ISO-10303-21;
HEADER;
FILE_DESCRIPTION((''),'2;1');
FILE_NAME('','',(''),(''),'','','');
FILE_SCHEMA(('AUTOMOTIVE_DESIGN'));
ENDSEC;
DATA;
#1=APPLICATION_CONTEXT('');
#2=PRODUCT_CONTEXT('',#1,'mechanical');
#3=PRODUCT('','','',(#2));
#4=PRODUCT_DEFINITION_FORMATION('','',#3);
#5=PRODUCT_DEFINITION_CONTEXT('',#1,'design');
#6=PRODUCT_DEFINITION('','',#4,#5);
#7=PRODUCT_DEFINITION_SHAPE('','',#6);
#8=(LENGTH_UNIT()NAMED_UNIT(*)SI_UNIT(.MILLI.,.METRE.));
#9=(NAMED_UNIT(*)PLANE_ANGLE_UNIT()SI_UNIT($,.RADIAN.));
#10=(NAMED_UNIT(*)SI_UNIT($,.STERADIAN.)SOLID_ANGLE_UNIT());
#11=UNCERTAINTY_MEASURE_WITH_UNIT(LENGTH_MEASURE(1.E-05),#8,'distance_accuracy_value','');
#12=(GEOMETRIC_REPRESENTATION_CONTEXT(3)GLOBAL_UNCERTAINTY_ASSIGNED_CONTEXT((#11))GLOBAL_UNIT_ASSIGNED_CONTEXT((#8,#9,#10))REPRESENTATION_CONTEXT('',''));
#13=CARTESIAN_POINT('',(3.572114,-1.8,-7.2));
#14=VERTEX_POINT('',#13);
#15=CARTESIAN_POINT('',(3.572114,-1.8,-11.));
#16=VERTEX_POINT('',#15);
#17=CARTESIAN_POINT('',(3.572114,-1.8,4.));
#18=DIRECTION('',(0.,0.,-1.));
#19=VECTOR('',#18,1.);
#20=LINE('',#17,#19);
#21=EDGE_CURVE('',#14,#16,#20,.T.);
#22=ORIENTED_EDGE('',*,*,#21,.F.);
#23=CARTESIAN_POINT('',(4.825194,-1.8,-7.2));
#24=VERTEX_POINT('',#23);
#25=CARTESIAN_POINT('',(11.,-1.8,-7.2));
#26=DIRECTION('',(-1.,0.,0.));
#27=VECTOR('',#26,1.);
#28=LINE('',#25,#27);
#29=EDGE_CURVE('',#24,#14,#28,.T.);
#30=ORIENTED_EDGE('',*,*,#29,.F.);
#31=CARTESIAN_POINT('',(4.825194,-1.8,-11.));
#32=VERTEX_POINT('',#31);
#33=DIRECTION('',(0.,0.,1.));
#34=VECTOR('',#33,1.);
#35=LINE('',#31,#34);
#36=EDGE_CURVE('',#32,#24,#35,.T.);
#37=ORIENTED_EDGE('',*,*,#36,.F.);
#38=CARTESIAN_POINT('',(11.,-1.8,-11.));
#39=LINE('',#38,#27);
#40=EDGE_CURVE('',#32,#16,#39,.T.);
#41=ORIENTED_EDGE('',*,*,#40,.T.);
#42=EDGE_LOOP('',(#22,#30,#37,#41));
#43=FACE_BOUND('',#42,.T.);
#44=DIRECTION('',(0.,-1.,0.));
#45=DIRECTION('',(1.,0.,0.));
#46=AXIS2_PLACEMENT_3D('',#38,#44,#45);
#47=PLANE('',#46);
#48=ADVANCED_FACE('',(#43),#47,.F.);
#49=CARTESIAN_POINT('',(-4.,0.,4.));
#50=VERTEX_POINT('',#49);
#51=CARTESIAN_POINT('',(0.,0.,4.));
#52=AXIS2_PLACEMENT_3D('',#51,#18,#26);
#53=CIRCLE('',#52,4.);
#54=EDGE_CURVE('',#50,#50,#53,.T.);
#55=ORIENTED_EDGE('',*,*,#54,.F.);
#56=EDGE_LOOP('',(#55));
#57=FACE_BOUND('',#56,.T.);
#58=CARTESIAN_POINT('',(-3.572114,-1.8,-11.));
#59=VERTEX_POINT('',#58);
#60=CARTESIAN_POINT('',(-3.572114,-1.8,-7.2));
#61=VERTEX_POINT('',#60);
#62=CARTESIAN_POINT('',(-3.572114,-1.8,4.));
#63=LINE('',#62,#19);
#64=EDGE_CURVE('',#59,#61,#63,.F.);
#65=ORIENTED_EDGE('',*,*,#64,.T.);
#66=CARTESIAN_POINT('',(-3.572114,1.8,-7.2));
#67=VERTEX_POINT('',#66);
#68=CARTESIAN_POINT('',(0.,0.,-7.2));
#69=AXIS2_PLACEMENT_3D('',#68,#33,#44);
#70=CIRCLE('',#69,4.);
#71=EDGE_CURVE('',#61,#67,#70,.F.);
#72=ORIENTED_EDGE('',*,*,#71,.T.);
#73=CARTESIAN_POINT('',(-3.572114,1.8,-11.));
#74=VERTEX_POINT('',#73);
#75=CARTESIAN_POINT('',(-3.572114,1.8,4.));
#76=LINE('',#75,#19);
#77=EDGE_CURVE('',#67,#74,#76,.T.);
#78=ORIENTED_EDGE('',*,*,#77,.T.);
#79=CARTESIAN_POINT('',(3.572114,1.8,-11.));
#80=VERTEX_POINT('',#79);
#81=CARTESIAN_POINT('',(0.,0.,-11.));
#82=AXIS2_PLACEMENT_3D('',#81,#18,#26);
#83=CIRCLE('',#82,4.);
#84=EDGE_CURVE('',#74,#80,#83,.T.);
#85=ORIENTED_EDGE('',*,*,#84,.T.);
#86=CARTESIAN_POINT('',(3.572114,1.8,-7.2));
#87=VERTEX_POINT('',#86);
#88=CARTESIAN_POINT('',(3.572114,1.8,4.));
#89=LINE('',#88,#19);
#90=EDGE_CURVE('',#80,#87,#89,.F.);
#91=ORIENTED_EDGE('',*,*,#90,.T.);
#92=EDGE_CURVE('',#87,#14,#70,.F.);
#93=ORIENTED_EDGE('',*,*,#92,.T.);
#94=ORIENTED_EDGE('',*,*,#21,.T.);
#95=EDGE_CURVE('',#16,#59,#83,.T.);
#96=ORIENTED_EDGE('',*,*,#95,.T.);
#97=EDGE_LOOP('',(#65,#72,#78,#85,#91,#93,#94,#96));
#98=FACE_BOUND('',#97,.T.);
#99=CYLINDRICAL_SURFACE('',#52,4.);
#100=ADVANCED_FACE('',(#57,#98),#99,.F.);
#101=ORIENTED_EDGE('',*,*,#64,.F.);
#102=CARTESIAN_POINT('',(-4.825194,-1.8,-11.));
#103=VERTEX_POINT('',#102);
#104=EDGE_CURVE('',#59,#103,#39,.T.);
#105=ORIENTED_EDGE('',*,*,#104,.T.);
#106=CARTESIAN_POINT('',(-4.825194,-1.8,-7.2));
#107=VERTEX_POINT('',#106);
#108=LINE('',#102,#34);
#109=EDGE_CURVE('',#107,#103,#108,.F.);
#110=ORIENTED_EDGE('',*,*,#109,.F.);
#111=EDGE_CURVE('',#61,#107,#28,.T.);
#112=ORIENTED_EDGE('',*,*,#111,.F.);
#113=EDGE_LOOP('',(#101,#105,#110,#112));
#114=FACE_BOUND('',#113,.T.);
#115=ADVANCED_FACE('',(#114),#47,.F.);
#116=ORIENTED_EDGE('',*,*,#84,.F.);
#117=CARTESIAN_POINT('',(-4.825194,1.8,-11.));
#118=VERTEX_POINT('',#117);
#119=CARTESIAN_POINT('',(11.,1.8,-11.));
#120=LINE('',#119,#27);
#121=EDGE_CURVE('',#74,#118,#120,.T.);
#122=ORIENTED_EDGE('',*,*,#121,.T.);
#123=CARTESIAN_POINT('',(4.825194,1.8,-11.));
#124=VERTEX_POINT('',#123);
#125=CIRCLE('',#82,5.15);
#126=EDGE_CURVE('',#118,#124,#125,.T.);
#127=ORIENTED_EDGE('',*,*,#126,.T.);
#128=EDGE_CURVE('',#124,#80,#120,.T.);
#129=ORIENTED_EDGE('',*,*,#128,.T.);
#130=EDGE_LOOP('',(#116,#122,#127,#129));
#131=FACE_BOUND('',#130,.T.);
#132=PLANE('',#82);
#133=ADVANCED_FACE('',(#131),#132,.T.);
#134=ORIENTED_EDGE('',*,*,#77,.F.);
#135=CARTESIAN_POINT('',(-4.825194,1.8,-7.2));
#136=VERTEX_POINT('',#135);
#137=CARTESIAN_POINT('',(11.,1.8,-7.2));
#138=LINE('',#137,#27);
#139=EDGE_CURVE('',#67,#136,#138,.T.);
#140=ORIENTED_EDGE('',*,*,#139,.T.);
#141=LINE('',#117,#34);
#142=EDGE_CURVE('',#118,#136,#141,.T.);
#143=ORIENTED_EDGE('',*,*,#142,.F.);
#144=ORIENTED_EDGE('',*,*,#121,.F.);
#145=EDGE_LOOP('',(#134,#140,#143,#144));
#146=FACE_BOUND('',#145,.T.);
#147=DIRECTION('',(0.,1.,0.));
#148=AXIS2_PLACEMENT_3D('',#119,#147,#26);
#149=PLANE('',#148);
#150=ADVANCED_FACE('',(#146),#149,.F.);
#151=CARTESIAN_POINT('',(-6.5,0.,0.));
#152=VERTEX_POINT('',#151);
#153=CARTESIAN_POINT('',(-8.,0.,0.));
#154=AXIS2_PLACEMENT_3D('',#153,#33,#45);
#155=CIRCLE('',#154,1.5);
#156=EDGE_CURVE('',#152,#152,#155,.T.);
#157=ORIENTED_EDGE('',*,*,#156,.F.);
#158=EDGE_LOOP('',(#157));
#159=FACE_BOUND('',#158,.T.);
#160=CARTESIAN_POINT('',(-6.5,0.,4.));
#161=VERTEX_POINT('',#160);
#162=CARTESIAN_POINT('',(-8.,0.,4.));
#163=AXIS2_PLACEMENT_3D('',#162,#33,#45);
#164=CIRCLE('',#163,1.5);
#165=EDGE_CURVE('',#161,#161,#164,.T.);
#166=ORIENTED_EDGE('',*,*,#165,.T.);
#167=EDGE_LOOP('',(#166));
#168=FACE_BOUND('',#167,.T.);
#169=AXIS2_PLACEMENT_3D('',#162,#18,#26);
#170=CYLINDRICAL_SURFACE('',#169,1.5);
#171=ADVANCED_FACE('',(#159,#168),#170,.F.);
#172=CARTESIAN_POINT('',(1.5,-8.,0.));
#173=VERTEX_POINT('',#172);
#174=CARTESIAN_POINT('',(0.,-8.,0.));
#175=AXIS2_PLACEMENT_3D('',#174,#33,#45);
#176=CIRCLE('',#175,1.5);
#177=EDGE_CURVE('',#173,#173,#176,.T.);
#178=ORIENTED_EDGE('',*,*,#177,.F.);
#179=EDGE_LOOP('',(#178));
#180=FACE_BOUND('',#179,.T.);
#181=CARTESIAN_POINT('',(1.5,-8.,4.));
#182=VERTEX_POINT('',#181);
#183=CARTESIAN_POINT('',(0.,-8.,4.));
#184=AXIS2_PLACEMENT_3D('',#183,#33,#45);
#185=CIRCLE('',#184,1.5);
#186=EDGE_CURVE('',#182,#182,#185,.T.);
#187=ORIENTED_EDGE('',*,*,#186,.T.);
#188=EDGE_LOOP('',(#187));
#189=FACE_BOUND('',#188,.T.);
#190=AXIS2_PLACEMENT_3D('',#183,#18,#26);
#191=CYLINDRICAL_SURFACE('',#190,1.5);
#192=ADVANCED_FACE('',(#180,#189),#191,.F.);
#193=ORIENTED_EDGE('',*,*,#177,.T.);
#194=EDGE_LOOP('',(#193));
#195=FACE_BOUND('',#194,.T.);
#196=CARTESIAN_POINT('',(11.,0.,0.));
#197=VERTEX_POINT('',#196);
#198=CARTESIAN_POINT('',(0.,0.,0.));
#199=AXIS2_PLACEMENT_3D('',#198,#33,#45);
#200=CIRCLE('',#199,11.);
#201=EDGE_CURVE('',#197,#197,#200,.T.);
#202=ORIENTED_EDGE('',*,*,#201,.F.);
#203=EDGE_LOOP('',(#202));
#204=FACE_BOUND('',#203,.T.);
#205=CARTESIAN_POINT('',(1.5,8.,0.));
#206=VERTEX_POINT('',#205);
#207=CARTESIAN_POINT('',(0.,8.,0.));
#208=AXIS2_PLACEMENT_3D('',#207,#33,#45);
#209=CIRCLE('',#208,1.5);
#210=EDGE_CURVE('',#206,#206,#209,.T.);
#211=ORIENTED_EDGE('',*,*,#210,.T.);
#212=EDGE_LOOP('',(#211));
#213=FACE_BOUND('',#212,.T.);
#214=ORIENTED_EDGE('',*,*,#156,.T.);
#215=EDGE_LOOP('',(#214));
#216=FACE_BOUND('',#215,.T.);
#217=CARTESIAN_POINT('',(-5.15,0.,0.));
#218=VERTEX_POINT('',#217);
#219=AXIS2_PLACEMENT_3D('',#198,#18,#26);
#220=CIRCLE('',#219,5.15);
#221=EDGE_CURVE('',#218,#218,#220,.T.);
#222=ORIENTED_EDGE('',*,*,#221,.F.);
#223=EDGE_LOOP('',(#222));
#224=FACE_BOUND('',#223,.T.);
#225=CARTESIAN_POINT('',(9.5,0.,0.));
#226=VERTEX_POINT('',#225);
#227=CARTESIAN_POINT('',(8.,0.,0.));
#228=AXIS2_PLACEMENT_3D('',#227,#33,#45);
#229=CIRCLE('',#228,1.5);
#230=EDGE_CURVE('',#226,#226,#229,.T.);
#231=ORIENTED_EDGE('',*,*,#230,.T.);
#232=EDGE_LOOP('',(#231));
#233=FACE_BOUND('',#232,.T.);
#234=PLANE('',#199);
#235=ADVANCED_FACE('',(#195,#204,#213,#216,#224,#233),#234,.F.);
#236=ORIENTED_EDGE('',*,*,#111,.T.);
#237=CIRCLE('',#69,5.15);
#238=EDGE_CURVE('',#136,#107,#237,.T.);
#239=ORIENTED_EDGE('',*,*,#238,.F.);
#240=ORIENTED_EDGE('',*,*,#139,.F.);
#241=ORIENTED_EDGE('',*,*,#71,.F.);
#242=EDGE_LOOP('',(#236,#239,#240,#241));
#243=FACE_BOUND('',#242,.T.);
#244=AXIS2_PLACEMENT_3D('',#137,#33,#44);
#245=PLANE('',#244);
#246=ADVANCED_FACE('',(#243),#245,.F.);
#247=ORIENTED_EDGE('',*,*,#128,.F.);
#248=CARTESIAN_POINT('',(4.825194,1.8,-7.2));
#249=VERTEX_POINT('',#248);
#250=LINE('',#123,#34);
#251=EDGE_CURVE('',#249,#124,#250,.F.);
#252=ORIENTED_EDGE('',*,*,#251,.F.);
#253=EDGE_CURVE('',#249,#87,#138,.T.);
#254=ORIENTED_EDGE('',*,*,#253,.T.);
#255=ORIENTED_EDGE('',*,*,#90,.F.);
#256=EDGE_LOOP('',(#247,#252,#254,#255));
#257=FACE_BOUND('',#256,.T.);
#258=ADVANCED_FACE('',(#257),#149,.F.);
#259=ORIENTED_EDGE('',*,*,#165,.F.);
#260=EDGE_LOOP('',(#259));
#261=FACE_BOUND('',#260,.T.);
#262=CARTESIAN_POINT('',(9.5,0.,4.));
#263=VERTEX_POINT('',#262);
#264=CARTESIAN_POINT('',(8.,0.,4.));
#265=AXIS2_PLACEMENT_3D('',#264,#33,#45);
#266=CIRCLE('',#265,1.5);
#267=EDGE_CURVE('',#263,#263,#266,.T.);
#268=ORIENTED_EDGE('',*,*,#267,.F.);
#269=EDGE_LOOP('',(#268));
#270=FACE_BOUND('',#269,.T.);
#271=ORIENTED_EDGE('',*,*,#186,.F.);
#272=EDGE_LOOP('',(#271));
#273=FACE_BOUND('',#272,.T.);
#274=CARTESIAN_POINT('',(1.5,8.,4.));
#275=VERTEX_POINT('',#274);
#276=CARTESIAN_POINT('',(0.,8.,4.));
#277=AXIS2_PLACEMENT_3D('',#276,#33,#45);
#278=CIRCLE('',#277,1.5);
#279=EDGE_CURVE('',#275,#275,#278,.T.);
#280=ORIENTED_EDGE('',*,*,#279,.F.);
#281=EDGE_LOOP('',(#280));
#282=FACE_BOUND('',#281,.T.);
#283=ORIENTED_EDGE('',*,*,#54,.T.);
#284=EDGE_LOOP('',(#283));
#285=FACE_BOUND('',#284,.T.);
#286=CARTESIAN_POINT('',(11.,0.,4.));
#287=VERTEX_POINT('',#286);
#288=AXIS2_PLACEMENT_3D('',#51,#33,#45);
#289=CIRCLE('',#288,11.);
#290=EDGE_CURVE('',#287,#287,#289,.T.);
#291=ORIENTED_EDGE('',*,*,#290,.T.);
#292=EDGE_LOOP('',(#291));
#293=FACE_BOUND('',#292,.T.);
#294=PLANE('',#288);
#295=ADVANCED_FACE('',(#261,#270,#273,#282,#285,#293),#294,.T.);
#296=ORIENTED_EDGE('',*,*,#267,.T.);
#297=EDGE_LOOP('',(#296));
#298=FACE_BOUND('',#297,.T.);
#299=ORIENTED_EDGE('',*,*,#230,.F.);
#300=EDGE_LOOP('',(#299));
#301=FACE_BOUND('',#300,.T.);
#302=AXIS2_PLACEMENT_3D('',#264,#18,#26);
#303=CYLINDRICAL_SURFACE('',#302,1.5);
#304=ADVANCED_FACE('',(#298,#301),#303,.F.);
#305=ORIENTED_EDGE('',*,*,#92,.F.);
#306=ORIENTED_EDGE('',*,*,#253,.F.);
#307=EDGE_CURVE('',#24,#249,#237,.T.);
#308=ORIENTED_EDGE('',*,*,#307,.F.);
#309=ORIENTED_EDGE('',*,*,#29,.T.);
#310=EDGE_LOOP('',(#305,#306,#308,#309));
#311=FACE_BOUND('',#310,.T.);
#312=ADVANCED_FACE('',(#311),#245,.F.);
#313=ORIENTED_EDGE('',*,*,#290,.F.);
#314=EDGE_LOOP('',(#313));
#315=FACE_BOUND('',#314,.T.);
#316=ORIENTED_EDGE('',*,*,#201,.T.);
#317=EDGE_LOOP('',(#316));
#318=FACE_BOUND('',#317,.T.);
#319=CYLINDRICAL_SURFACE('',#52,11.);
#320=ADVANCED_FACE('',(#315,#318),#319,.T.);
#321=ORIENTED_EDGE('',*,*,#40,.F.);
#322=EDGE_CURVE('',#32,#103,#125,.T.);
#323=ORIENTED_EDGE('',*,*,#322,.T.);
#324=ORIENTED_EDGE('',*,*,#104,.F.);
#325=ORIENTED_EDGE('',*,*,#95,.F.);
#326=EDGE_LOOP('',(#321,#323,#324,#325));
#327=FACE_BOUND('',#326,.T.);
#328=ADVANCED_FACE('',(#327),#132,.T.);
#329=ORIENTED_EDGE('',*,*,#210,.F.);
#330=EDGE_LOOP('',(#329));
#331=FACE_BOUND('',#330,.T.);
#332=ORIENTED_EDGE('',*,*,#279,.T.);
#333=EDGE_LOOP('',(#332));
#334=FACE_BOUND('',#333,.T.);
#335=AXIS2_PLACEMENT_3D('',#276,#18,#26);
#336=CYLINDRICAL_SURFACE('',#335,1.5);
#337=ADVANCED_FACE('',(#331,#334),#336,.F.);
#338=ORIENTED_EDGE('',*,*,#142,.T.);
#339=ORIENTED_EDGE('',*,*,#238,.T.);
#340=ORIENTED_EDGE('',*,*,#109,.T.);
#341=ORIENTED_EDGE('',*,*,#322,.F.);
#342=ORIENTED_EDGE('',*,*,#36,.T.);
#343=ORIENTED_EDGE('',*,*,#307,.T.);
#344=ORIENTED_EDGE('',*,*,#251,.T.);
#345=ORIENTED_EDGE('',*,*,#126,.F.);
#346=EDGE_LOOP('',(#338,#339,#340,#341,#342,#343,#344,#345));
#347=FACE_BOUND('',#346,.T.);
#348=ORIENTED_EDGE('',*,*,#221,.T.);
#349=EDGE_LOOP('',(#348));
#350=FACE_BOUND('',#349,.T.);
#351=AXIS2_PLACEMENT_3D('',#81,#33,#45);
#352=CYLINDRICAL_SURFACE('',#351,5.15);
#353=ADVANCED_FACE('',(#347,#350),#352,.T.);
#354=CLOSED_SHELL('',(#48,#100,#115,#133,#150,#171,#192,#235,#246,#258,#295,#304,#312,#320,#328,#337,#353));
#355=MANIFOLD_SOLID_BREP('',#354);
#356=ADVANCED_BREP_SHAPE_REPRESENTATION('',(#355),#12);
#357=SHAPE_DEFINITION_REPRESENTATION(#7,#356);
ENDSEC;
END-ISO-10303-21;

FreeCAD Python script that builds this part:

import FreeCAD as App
import Part
import Sketcher
Q = App.Units.Quantity

doc = App.newDocument("Part")
body = doc.addObject("PartDesign::Body", "Body")

# Sketch on XY plane
sketch1 = body.newObject("Sketcher::SketchObject", "Sketch")
sketch1.AttachmentSupport = (doc.getObject("XY_Plane"), [""])
sketch1.MapMode = "FlatFace"
sketch1.addGeometry([
    Part.Circle(App.Vector(0, 0, 0), App.Vector(0, 0, 1), 11),  # 0
    Part.Circle(App.Vector(0, -8, 0), App.Vector(0, 0, 1), 1.5),  # 1
    Part.Circle(App.Vector(-8, 0, 0), App.Vector(0, 0, 1), 1.5),  # 2
    Part.Circle(App.Vector(8, 0, 0), App.Vector(0, 0, 1), 1.5),  # 3
    Part.Circle(App.Vector(0, 8, 0), App.Vector(0, 0, 1), 1.5),  # 4
], False)
sketch1.addConstraint([
    Sketcher.Constraint("Coincident", 0, 3, -1, 1),
    Sketcher.Constraint("Equal", 1, 2),
    Sketcher.Constraint("Equal", 2, 3),
    Sketcher.Constraint("Equal", 3, 4),
    Sketcher.Constraint("Symmetric", 2, 3, 3, 3, -1, 1),
    Sketcher.Constraint("Symmetric", 1, 3, 4, 3, -1, 1),
    Sketcher.Constraint("PointOnObject", 1, 3, -2),
    Sketcher.Constraint("PointOnObject", 2, 3, -1),
    Sketcher.Constraint("Diameter", 0, Q("22 mm")),
    Sketcher.Constraint("Diameter", 1, Q("3 mm")),
    Sketcher.Constraint("DistanceY", 1, 3, -1, 1, Q("8 mm")),
    Sketcher.Constraint("DistanceX", 2, 3, -1, 1, Q("8 mm")),
])
pad1 = body.newObject("PartDesign::Pad", "Pad")
pad1.Profile = sketch1
pad1.Length = 4

# Sketch on XY plane
sketch2 = body.newObject("Sketcher::SketchObject", "Sketch001")
sketch2.AttachmentSupport = (doc.getObject("XY_Plane"), [""])
sketch2.MapMode = "FlatFace"
sketch2.addGeometry(Part.Circle(App.Vector(0, 0, 0), App.Vector(0, 0, 1), 5.15), False)
sketch2.addConstraint([
    Sketcher.Constraint("Coincident", 0, 3, -1, 1),
    Sketcher.Constraint("Diameter", 0, Q("10.3 mm")),
])
pad2 = body.newObject("PartDesign::Pad", "Pad001")
pad2.Profile = sketch2
pad2.Length = 11
pad2.Reversed = True

# Sketch on XY plane
sketch3 = body.newObject("Sketcher::SketchObject", "Sketch002")
sketch3.AttachmentSupport = (doc.getObject("XY_Plane"), [""])
sketch3.MapMode = "FlatFace"
sketch3.AttachmentOffset = App.Placement(App.Vector(0, 0, -11), App.Rotation())
sketch3.addGeometry(Part.Circle(App.Vector(0, 0, 0), App.Vector(0, 0, 1), 4), False)
sketch3.addConstraint([
    Sketcher.Constraint("Coincident", 0, 3, -1, 1),
    Sketcher.Constraint("Diameter", 0, Q("8 mm")),
])
pocket1 = body.newObject("PartDesign::Pocket", "Pocket")
pocket1.Profile = sketch3
pocket1.Type = "ThroughAll"
pocket1.Midplane = True

# Sketch on YZ plane
sketch4 = body.newObject("Sketcher::SketchObject", "Sketch003")
sketch4.AttachmentSupport = (doc.getObject("YZ_Plane"), [""])
sketch4.MapMode = "FlatFace"
sketch4.addGeometry([
    Part.LineSegment(App.Vector(1.8, -11, 0), App.Vector(-1.8, -11, 0)),
    Part.LineSegment(App.Vector(-1.8, -11, 0), App.Vector(-1.8, -7.2, 0)),
    Part.LineSegment(App.Vector(-1.8, -7.2, 0), App.Vector(1.8, -7.2, 0)),
    Part.LineSegment(App.Vector(1.8, -7.2, 0), App.Vector(1.8, -11, 0)),
], False)
sketch4.addConstraint([
    Sketcher.Constraint("Coincident", 0, 2, 1, 1),
    Sketcher.Constraint("Coincident", 1, 2, 2, 1),
    Sketcher.Constraint("Coincident", 2, 2, 3, 1),
    Sketcher.Constraint("Coincident", 3, 2, 0, 1),
    Sketcher.Constraint("Horizontal", 0),
    Sketcher.Constraint("Vertical", 1),
    Sketcher.Constraint("Horizontal", 2),
    Sketcher.Constraint("Vertical", 3),
    Sketcher.Constraint("DistanceX", 0, 2, 0, 1, Q("3.6 mm")),
    Sketcher.Constraint("DistanceY", 1, 1, 1, 2, Q("3.8 mm")),
    Sketcher.Constraint("DistanceY", 0, 2, -1, 1, Q("11 mm")),
    Sketcher.Constraint("DistanceX", 0, 2, -1, 1, Q("1.8 mm")),
])
pocket2 = body.newObject("PartDesign::Pocket", "Pocket001")
pocket2.Profile = sketch4
pocket2.Type = "ThroughAll"
pocket2.Midplane = True

doc.recompute()
